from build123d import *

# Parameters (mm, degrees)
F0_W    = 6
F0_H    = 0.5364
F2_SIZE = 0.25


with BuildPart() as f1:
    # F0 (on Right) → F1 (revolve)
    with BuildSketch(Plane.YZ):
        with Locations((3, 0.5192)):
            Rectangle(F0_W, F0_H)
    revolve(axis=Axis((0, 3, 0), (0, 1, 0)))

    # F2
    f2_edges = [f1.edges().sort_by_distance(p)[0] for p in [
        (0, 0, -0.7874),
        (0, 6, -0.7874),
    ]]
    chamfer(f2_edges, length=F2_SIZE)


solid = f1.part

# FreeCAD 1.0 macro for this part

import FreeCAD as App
import Part
import Sketcher
from FreeCAD import Vector


def edges_at(feature, points):
    """Names of the edges that pass closest to the given points."""
    edges = feature.Shape.Edges
    near = lambda p: min(range(len(edges)), key=lambda i: edges[i].distToShape(Part.Vertex(*p))[0])
    return sorted({f"Edge{near(p) + 1}" for p in points})

doc = App.newDocument("Part")
body = doc.addObject("PartDesign::Body", "Body")

sketch1 = body.newObject("Sketcher::SketchObject", "Sketch")
sketch1.AttachmentSupport = (doc.getObject("YZ_Plane"), [""])
sketch1.MapMode = "FlatFace"
sketch1.addGeometry([
    Part.LineSegment(Vector(0, 0.8, 0), Vector(0, 0.3, 0)),
    Part.LineSegment(Vector(0, 0.3, 0), Vector(6, 0.3, 0)),
    Part.LineSegment(Vector(6, 0.3, 0), Vector(6, 0.8, 0)),
    Part.LineSegment(Vector(6, 0.8, 0), Vector(0, 0.8, 0)),
], False)
sketch1.addConstraint([
    Sketcher.Constraint("Coincident", 0, 2, 1, 1),
    Sketcher.Constraint("Coincident", 1, 2, 2, 1),
    Sketcher.Constraint("Coincident", 2, 2, 3, 1),
    Sketcher.Constraint("Coincident", 3, 2, 0, 1),
    Sketcher.Constraint("Vertical", 0),
    Sketcher.Constraint("Horizontal", 1),
    Sketcher.Constraint("Vertical", 2),
    Sketcher.Constraint("Horizontal", 3),
    Sketcher.Constraint("PointOnObject", 0, 2, -2),
    Sketcher.Constraint("DistanceX", 1, 1, 1, 2, 6.0),
    Sketcher.Constraint("DistanceY", 0, 2, 0, 1, 0.5364),
    Sketcher.Constraint("DistanceY", -1, 1, 0, 2, 0.251),
])
revolution = body.newObject("PartDesign::Revolution", "Revolution")
revolution.Profile = sketch1
revolution.ReferenceAxis = (sketch1, ["H_Axis"])
revolution.Angle = 360
doc.recompute()

chamfer = body.newObject("PartDesign::Chamfer", "Chamfer")
chamfer.Base = (revolution, edges_at(revolution, [(0, 0, -0.787), (0, 6, -0.787)]))
chamfer.Size = 0.25

doc.recompute()
